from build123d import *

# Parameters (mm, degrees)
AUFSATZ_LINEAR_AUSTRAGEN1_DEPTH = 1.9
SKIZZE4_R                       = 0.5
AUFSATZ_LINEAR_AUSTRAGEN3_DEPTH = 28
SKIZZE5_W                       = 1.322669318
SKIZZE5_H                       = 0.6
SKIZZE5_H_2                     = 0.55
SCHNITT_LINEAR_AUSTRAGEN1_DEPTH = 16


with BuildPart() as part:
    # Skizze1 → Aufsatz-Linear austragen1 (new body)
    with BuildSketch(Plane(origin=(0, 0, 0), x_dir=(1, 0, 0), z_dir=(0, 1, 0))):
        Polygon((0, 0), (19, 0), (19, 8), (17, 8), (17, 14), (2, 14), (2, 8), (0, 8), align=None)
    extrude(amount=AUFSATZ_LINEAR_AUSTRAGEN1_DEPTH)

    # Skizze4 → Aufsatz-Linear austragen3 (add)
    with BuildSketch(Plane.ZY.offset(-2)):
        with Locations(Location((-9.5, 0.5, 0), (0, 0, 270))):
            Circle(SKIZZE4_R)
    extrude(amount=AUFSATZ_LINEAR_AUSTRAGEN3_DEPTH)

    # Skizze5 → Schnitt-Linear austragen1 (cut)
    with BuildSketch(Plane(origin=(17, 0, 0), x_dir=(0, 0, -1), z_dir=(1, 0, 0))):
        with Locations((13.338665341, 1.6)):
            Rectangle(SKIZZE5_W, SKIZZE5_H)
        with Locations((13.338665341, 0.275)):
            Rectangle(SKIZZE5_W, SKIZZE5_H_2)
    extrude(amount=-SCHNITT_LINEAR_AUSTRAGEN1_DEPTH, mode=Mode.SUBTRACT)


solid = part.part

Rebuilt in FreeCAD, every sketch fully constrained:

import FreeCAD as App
import Part
import Sketcher
Q = App.Units.Quantity


def add_polygon(sketch, points):
    """Adds a closed chain of lines whose ends are joined by coincident constraints."""
    first, n = sketch.GeometryCount, len(points)
    for a, b in zip(points, points[1:] + points[:1]):
        sketch.addGeometry(Part.LineSegment(App.Vector(*a, 0), App.Vector(*b, 0)), False)
    for i in range(n):
        sketch.addConstraint(Sketcher.Constraint("Coincident", first + i, 2, first + (i + 1) % n, 1))

doc = App.newDocument("Part")
params = doc.addObject("Spreadsheet::Sheet", "Params")
for row, (alias, value) in enumerate([
    ("sketch1_width", "19 mm"),
    ("sketch1_width2", "2 mm"),
    ("sketch1_height", "8 mm"),
    ("sketch1_height2", "6 mm"),
    ("pad1_length", "1.9 mm"),
    ("sketch2_diameter", "1 mm"),
    ("pad2_length", "28 mm"),
    ("sketch3_width", "0.6 mm"),
    ("sketch3_width2", "0.55 mm"),
    ("pocket1_length", "16 mm"),
], start=1):
    params.set(f"A{row}", alias)
    params.set(f"B{row}", "=" + value)
    params.setAlias(f"B{row}", alias)

body = doc.addObject("PartDesign::Body", "Body")

# Sketch on XZ plane
sketch1 = doc.addObject("Sketcher::SketchObject", "Sketch")
body.addObject(sketch1)
sketch1.AttachmentSupport = (doc.XZ_Plane, [""])
sketch1.MapMode = "FlatFace"
add_polygon(sketch1, [(0, 0), (19, 0), (19, -8), (17, -8), (17, -14), (2, -14), (2, -8), (0, -8)])  # lines 0-7
sketch1.addConstraint(Sketcher.Constraint("Horizontal", 0))
sketch1.addConstraint(Sketcher.Constraint("Vertical", 1))
sketch1.addConstraint(Sketcher.Constraint("Horizontal", 2))
sketch1.addConstraint(Sketcher.Constraint("Vertical", 3))
sketch1.addConstraint(Sketcher.Constraint("Horizontal", 4))
sketch1.addConstraint(Sketcher.Constraint("Vertical", 5))
sketch1.addConstraint(Sketcher.Constraint("Horizontal", 6))
sketch1.addConstraint(Sketcher.Constraint("Vertical", 7))
sketch1.addConstraint(Sketcher.Constraint("Coincident", 7, 2, -1, 1))
sketch1.addConstraint(Sketcher.Constraint("Horizontal", 2, 2, 5, 2))
sketch1.addConstraint(Sketcher.Constraint("Equal", 2, 6))
sketch1.addConstraint(Sketcher.Constraint("DistanceX", 0, 1, 0, 2, Q("19 mm")))
sketch1.addConstraint(Sketcher.Constraint("DistanceX", 2, 2, 2, 1, Q("2 mm")))
sketch1.addConstraint(Sketcher.Constraint("DistanceY", 1, 2, 1, 1, Q("8 mm")))
sketch1.addConstraint(Sketcher.Constraint("DistanceY", 3, 2, 3, 1, Q("6 mm")))
sketch1.setExpression("Constraints[19]", "Params.sketch1_width")
sketch1.setExpression("Constraints[20]", "Params.sketch1_width2")
sketch1.setExpression("Constraints[21]", "Params.sketch1_height")
sketch1.setExpression("Constraints[22]", "Params.sketch1_height2")
pad1 = doc.addObject("PartDesign::Pad", "Pad")
body.addObject(pad1)
pad1.Profile = sketch1
pad1.setExpression("Length", "Params.pad1_length")
pad1.Reversed = True

# Sketch on YZ plane
sketch2 = doc.addObject("Sketcher::SketchObject", "Sketch001")
body.addObject(sketch2)
sketch2.AttachmentSupport = (doc.YZ_Plane, [""])
sketch2.MapMode = "FlatFace"
sketch2.AttachmentOffset = App.Placement(App.Vector(0, 0, 2), App.Rotation())
sketch2.addGeometry(Part.Circle(App.Vector(0.5, -9.5, 0), App.Vector(0, 0, 1), 0.5), False)
sketch2.addConstraint(Sketcher.Constraint("Diameter", 0, Q("1 mm")))
sketch2.addConstraint(Sketcher.Constraint("DistanceX", -1, 1, 0, 3, Q("0.5 mm")))
sketch2.addConstraint(Sketcher.Constraint("DistanceY", 0, 3, -1, 1, Q("9.5 mm")))
sketch2.setExpression("Constraints[0]", "Params.sketch2_diameter")
pad2 = doc.addObject("PartDesign::Pad", "Pad001")
body.addObject(pad2)
pad2.Profile = sketch2
pad2.setExpression("Length", "Params.pad2_length")
pad2.Reversed = True

# Sketch on YZ plane
sketch3 = doc.addObject("Sketcher::SketchObject", "Sketch002")
body.addObject(sketch3)
sketch3.AttachmentSupport = (doc.YZ_Plane, [""])
sketch3.MapMode = "FlatFace"
sketch3.AttachmentOffset = App.Placement(App.Vector(0, 0, 17), App.Rotation())
add_polygon(sketch3, [(1.9, -12.7), (1.3, -12.7), (1.3, -14), (1.9, -14)])  # lines 0-3
add_polygon(sketch3, [(0.6, -12.7), (0, -12.7), (0, -14), (0.6, -14)])  # lines 4-7
sketch3.addConstraint(Sketcher.Constraint("Horizontal", 0))
sketch3.addConstraint(Sketcher.Constraint("Vertical", 1))
sketch3.addConstraint(Sketcher.Constraint("Horizontal", 2))
sketch3.addConstraint(Sketcher.Constraint("Vertical", 3))
sketch3.addConstraint(Sketcher.Constraint("Horizontal", 4))
sketch3.addConstraint(Sketcher.Constraint("Vertical", 5))
sketch3.addConstraint(Sketcher.Constraint("Horizontal", 6))
sketch3.addConstraint(Sketcher.Constraint("Vertical", 7))
sketch3.addConstraint(Sketcher.Constraint("PointOnObject", 4, 2, -2))
sketch3.addConstraint(Sketcher.Constraint("Horizontal", 3, 2, 4, 2))
sketch3.addConstraint(Sketcher.Constraint("Horizontal", 2, 2, 5, 2))
sketch3.addConstraint(Sketcher.Constraint("DistanceX", 0, 2, 0, 1, Q("0.6 mm")))
sketch3.addConstraint(Sketcher.Constraint("DistanceY", 1, 2, -1, 1, Q("14 mm")))
sketch3.addConstraint(Sketcher.Constraint("DistanceX", 4, 2, 4, 1, Q("0.55 mm")))
sketch3.addConstraint(Sketcher.Constraint("DistanceX", -1, 1, 0, 2, Q("1.3 mm")))
sketch3.addConstraint(Sketcher.Constraint("DistanceY", 1, 2, 1, 1, Q("1.322669 mm")))
sketch3.setExpression("Constraints[19]", "Params.sketch3_width")
sketch3.setExpression("Constraints[21]", "Params.sketch3_width2")
pocket1 = doc.addObject("PartDesign::Pocket", "Pocket")
body.addObject(pocket1)
pocket1.Profile = sketch3
pocket1.setExpression("Length", "Params.pocket1_length")

doc.recompute()
